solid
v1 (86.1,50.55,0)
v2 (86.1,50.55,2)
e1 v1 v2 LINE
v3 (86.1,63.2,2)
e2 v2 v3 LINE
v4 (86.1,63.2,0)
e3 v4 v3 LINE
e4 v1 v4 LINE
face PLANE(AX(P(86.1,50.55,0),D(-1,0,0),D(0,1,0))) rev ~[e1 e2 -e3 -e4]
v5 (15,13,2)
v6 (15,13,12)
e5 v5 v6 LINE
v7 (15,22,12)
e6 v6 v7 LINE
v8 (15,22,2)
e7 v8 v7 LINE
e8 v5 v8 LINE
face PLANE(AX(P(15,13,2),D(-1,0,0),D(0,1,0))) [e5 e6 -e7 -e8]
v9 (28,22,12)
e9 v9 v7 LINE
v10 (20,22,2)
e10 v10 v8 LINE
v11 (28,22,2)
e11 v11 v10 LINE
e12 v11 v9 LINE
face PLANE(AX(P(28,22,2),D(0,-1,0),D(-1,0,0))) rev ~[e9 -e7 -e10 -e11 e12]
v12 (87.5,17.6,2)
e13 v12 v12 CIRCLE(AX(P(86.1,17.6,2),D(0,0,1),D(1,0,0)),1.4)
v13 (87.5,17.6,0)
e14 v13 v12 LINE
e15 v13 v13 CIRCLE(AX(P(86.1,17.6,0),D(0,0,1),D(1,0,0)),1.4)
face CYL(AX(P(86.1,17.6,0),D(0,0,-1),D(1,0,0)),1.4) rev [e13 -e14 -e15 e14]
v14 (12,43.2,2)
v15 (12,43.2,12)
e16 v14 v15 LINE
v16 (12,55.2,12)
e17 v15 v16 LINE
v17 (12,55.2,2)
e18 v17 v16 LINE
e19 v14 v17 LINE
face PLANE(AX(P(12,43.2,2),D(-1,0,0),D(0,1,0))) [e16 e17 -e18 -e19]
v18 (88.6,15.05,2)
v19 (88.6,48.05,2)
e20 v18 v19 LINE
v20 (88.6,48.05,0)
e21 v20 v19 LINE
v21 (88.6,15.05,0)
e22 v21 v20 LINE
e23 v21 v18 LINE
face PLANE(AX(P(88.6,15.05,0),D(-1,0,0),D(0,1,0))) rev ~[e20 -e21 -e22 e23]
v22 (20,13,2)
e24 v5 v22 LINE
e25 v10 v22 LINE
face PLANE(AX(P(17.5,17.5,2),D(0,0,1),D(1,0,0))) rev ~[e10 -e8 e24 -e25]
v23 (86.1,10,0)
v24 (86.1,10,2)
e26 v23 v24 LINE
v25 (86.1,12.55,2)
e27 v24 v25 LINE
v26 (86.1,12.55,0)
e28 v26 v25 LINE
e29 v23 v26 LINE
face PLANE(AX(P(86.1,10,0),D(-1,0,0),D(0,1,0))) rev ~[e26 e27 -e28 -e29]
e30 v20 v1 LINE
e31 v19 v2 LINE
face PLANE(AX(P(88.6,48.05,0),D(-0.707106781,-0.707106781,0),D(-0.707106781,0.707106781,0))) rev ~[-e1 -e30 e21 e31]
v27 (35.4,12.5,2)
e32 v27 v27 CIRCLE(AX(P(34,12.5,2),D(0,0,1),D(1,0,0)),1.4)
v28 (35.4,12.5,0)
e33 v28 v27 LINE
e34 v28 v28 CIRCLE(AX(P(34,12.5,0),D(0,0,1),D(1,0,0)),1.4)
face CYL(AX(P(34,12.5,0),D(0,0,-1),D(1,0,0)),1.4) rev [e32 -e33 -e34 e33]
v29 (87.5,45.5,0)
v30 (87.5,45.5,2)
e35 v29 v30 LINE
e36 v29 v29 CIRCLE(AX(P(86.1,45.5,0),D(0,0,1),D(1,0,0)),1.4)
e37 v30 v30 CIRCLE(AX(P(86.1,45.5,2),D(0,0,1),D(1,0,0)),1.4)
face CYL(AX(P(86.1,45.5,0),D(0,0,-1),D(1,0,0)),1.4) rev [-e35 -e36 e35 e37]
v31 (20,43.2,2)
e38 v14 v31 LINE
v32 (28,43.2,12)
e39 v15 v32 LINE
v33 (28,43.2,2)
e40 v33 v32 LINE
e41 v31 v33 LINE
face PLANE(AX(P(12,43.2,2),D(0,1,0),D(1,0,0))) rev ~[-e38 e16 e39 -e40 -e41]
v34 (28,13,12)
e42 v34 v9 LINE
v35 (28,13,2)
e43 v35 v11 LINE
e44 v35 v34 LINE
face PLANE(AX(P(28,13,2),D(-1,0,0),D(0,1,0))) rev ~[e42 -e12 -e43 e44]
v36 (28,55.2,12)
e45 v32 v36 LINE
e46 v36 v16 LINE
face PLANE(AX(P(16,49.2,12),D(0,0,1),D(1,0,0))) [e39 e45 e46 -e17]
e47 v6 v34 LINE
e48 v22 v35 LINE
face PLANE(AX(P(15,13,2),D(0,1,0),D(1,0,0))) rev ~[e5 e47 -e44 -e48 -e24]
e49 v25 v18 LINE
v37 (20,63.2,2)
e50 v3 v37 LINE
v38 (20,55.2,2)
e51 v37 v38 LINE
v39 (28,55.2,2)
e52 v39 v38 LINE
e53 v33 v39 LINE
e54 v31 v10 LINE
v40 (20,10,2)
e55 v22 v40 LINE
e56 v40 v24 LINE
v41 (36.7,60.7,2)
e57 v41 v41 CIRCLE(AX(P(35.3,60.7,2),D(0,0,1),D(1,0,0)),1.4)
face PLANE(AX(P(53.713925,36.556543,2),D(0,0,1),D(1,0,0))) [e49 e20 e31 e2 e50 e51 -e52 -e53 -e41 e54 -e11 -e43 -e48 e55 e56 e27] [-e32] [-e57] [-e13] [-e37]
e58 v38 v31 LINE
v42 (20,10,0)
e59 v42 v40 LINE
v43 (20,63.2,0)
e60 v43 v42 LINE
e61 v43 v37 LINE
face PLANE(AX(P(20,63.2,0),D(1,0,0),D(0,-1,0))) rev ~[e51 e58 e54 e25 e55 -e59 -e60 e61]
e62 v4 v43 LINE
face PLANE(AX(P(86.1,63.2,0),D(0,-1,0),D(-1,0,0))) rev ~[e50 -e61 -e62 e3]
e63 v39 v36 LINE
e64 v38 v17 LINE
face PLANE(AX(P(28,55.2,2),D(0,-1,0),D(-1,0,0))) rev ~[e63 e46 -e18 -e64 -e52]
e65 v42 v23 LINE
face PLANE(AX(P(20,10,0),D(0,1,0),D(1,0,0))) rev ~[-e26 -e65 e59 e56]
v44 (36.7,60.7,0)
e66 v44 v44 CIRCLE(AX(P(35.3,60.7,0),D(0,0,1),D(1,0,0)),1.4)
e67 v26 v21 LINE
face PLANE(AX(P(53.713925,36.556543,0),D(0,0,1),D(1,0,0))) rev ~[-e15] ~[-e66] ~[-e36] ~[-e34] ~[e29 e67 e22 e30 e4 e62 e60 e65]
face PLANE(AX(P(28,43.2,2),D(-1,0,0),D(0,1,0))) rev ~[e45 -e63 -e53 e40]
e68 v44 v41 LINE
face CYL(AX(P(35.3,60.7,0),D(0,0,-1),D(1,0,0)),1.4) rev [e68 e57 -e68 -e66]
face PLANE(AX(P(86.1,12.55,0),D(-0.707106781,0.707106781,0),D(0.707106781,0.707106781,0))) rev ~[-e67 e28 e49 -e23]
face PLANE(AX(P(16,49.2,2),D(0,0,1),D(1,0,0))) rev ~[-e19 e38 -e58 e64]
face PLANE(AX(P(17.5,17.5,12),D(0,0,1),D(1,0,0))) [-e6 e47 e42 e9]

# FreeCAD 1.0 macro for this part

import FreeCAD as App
import Part
import Sketcher
from FreeCAD import Vector
Q = App.Units.Quantity


def add_polygon(sketch, points):
    """Adds a closed chain of lines whose ends are joined by coincident constraints."""
    first, n = sketch.GeometryCount, len(points)
    for a, b in zip(points, points[1:] + points[:1]):
        sketch.addGeometry(Part.LineSegment(App.Vector(*a, 0), App.Vector(*b, 0)), False)
    for i in range(n):
        sketch.addConstraint(Sketcher.Constraint("Coincident", first + i, 2, first + (i + 1) % n, 1))

doc = App.newDocument("Part")
params = doc.addObject("Spreadsheet::Sheet", "Params")
for row, (alias, value) in enumerate([
    ("sketch1_diameter", "2.8 mm"),
    ("sketch1_height", "33 mm"),
    ("sketch1_width", "66.1 mm"),
    ("sketch1_height2", "53.2 mm"),
    ("sketch1_height3", "2.55 mm"),
    ("pad1_length", "2 mm"),
    ("sketch2_width", "16 mm"),
    ("sketch2_width2", "13 mm"),
    ("sketch2_height", "12 mm"),
    ("sketch2_height2", "9 mm"),
    ("pad2_length", "10 mm"),
], start=1):
    params.set(f"A{row}", alias)
    params.set(f"B{row}", "=" + value)
    params.setAlias(f"B{row}", alias)

body = doc.addObject("PartDesign::Body", "Body")

# Sketch on XY plane
sketch1 = body.newObject("Sketcher::SketchObject", "Sketch")
sketch1.AttachmentSupport = (doc.getObject("XY_Plane"), [""])
sketch1.MapMode = "FlatFace"
add_polygon(sketch1, [(86.1, 63.2), (20, 63.2), (20, 10), (86.1, 10), (86.1, 12.6), (88.6, 15.1), (88.6, 48), (86.1, 50.5)])  # lines 0-7
sketch1.addGeometry(Part.Circle(Vector(34, 12.5, 0), Vector(0, 0, 1), 1.4), False)  # 8
sketch1.addGeometry(Part.Circle(Vector(86.1, 17.6, 0), Vector(0, 0, 1), 1.4), False)  # 9
sketch1.addGeometry(Part.Circle(Vector(35.3, 60.7, 0), Vector(0, 0, 1), 1.4), False)  # 10
sketch1.addGeometry(Part.Circle(Vector(86.1, 45.5, 0), Vector(0, 0, 1), 1.4), False)  # 11
sketch1.addConstraint([
    Sketcher.Constraint("Horizontal", 0),
    Sketcher.Constraint("Vertical", 1),
    Sketcher.Constraint("Horizontal", 2),
    Sketcher.Constraint("Vertical", 3),
    Sketcher.Constraint("Vertical", 5),
    Sketcher.Constraint("Vertical", 7),
    Sketcher.Constraint("Equal", 8, 9),
    Sketcher.Constraint("Equal", 9, 10),
    Sketcher.Constraint("Equal", 10, 11),
    Sketcher.Constraint("Perpendicular", 4, 6),
    Sketcher.Constraint("Vertical", 9, 3, 11, 3),
    Sketcher.Constraint("Vertical", 11, 3, 2, 2),
    Sketcher.Constraint("Vertical", 3, 2, 6, 2),
    Sketcher.Constraint("Equal", 4, 6),
    Sketcher.Constraint("Diameter", 8, Q("2.8 mm")),
    Sketcher.Constraint("DistanceY", 5, 1, 5, 2, Q("33 mm")),
    Sketcher.Constraint("DistanceX", 0, 2, 0, 1, Q("66.1 mm")),
    Sketcher.Constraint("DistanceY", 1, 2, 1, 1, Q("53.2 mm")),
    Sketcher.Constraint("DistanceX", -1, 1, 8, 3, Q("34 mm")),
    Sketcher.Constraint("DistanceX", -1, 1, 0, 2, Q("20 mm")),
    Sketcher.Constraint("DistanceY", -1, 1, 1, 2, Q("10 mm")),
    Sketcher.Constraint("DistanceY", 8, 3, 11, 3, Q("33 mm")),
    Sketcher.Constraint("DistanceY", 3, 2, 6, 2, Q("38 mm")),
    Sketcher.Constraint("DistanceY", 3, 1, 3, 2, Q("2.55 mm")),
    Sketcher.Constraint("DistanceY", -1, 1, 8, 3, Q("12.5 mm")),
    Sketcher.Constraint("DistanceY", -1, 1, 9, 3, Q("17.6 mm")),
    Sketcher.Constraint("DistanceX", -1, 1, 10, 3, Q("35.3 mm")),
    Sketcher.Constraint("DistanceY", -1, 1, 10, 3, Q("60.7 mm")),
])
sketch1.setExpression("Constraints[22]", "Params.sketch1_diameter")
sketch1.setExpression("Constraints[23]", "Params.sketch1_height")
sketch1.setExpression("Constraints[24]", "Params.sketch1_width")
sketch1.setExpression("Constraints[25]", "Params.sketch1_height2")
sketch1.setExpression("Constraints[31]", "Params.sketch1_height3")
pad1 = body.newObject("PartDesign::Pad", "Pad")
pad1.Profile = sketch1
pad1.setExpression("Length", "Params.pad1_length")

# Sketch on XY plane
sketch2 = body.newObject("Sketcher::SketchObject", "Sketch001")
sketch2.AttachmentSupport = (doc.getObject("XY_Plane"), [""])
sketch2.MapMode = "FlatFace"
sketch2.AttachmentOffset = App.Placement(Vector(0, 0, 2), App.Rotation())
add_polygon(sketch2, [(12, 55), (12, 43), (28, 43), (28, 55)])  # lines 0-3
add_polygon(sketch2, [(15, 22), (15, 13), (28, 13), (28, 22)])  # lines 4-7
sketch2.addConstraint([
    Sketcher.Constraint("Vertical", 0),
    Sketcher.Constraint("Horizontal", 1),
    Sketcher.Constraint("Vertical", 2),
    Sketcher.Constraint("Horizontal", 3),
    Sketcher.Constraint("Vertical", 4),
    Sketcher.Constraint("Horizontal", 5),
    Sketcher.Constraint("Vertical", 6),
    Sketcher.Constraint("Horizontal", 7),
    Sketcher.Constraint("Vertical", 2, 2, 5, 2),
    Sketcher.Constraint("DistanceX", 1, 1, 1, 2, Q("16 mm")),
    Sketcher.Constraint("DistanceX", 5, 1, 5, 2, Q("13 mm")),
    Sketcher.Constraint("DistanceY", 0, 2, 0, 1, Q("12 mm")),
    Sketcher.Constraint("DistanceY", 4, 2, 4, 1, Q("9 mm")),
    Sketcher.Constraint("DistanceX", -1, 1, 0, 2, Q("12 mm")),
    Sketcher.Constraint("DistanceY", -1, 1, 4, 2, Q("13 mm")),
    Sketcher.Constraint("DistanceY", -1, 1, 0, 2, Q("43.2 mm")),
])
sketch2.setExpression("Constraints[17]", "Params.sketch2_width")
sketch2.setExpression("Constraints[18]", "Params.sketch2_width2")
sketch2.setExpression("Constraints[19]", "Params.sketch2_height")
sketch2.setExpression("Constraints[20]", "Params.sketch2_height2")
pad2 = body.newObject("PartDesign::Pad", "Pad001")
pad2.Profile = sketch2
pad2.setExpression("Length", "Params.pad2_length")

doc.recompute()
